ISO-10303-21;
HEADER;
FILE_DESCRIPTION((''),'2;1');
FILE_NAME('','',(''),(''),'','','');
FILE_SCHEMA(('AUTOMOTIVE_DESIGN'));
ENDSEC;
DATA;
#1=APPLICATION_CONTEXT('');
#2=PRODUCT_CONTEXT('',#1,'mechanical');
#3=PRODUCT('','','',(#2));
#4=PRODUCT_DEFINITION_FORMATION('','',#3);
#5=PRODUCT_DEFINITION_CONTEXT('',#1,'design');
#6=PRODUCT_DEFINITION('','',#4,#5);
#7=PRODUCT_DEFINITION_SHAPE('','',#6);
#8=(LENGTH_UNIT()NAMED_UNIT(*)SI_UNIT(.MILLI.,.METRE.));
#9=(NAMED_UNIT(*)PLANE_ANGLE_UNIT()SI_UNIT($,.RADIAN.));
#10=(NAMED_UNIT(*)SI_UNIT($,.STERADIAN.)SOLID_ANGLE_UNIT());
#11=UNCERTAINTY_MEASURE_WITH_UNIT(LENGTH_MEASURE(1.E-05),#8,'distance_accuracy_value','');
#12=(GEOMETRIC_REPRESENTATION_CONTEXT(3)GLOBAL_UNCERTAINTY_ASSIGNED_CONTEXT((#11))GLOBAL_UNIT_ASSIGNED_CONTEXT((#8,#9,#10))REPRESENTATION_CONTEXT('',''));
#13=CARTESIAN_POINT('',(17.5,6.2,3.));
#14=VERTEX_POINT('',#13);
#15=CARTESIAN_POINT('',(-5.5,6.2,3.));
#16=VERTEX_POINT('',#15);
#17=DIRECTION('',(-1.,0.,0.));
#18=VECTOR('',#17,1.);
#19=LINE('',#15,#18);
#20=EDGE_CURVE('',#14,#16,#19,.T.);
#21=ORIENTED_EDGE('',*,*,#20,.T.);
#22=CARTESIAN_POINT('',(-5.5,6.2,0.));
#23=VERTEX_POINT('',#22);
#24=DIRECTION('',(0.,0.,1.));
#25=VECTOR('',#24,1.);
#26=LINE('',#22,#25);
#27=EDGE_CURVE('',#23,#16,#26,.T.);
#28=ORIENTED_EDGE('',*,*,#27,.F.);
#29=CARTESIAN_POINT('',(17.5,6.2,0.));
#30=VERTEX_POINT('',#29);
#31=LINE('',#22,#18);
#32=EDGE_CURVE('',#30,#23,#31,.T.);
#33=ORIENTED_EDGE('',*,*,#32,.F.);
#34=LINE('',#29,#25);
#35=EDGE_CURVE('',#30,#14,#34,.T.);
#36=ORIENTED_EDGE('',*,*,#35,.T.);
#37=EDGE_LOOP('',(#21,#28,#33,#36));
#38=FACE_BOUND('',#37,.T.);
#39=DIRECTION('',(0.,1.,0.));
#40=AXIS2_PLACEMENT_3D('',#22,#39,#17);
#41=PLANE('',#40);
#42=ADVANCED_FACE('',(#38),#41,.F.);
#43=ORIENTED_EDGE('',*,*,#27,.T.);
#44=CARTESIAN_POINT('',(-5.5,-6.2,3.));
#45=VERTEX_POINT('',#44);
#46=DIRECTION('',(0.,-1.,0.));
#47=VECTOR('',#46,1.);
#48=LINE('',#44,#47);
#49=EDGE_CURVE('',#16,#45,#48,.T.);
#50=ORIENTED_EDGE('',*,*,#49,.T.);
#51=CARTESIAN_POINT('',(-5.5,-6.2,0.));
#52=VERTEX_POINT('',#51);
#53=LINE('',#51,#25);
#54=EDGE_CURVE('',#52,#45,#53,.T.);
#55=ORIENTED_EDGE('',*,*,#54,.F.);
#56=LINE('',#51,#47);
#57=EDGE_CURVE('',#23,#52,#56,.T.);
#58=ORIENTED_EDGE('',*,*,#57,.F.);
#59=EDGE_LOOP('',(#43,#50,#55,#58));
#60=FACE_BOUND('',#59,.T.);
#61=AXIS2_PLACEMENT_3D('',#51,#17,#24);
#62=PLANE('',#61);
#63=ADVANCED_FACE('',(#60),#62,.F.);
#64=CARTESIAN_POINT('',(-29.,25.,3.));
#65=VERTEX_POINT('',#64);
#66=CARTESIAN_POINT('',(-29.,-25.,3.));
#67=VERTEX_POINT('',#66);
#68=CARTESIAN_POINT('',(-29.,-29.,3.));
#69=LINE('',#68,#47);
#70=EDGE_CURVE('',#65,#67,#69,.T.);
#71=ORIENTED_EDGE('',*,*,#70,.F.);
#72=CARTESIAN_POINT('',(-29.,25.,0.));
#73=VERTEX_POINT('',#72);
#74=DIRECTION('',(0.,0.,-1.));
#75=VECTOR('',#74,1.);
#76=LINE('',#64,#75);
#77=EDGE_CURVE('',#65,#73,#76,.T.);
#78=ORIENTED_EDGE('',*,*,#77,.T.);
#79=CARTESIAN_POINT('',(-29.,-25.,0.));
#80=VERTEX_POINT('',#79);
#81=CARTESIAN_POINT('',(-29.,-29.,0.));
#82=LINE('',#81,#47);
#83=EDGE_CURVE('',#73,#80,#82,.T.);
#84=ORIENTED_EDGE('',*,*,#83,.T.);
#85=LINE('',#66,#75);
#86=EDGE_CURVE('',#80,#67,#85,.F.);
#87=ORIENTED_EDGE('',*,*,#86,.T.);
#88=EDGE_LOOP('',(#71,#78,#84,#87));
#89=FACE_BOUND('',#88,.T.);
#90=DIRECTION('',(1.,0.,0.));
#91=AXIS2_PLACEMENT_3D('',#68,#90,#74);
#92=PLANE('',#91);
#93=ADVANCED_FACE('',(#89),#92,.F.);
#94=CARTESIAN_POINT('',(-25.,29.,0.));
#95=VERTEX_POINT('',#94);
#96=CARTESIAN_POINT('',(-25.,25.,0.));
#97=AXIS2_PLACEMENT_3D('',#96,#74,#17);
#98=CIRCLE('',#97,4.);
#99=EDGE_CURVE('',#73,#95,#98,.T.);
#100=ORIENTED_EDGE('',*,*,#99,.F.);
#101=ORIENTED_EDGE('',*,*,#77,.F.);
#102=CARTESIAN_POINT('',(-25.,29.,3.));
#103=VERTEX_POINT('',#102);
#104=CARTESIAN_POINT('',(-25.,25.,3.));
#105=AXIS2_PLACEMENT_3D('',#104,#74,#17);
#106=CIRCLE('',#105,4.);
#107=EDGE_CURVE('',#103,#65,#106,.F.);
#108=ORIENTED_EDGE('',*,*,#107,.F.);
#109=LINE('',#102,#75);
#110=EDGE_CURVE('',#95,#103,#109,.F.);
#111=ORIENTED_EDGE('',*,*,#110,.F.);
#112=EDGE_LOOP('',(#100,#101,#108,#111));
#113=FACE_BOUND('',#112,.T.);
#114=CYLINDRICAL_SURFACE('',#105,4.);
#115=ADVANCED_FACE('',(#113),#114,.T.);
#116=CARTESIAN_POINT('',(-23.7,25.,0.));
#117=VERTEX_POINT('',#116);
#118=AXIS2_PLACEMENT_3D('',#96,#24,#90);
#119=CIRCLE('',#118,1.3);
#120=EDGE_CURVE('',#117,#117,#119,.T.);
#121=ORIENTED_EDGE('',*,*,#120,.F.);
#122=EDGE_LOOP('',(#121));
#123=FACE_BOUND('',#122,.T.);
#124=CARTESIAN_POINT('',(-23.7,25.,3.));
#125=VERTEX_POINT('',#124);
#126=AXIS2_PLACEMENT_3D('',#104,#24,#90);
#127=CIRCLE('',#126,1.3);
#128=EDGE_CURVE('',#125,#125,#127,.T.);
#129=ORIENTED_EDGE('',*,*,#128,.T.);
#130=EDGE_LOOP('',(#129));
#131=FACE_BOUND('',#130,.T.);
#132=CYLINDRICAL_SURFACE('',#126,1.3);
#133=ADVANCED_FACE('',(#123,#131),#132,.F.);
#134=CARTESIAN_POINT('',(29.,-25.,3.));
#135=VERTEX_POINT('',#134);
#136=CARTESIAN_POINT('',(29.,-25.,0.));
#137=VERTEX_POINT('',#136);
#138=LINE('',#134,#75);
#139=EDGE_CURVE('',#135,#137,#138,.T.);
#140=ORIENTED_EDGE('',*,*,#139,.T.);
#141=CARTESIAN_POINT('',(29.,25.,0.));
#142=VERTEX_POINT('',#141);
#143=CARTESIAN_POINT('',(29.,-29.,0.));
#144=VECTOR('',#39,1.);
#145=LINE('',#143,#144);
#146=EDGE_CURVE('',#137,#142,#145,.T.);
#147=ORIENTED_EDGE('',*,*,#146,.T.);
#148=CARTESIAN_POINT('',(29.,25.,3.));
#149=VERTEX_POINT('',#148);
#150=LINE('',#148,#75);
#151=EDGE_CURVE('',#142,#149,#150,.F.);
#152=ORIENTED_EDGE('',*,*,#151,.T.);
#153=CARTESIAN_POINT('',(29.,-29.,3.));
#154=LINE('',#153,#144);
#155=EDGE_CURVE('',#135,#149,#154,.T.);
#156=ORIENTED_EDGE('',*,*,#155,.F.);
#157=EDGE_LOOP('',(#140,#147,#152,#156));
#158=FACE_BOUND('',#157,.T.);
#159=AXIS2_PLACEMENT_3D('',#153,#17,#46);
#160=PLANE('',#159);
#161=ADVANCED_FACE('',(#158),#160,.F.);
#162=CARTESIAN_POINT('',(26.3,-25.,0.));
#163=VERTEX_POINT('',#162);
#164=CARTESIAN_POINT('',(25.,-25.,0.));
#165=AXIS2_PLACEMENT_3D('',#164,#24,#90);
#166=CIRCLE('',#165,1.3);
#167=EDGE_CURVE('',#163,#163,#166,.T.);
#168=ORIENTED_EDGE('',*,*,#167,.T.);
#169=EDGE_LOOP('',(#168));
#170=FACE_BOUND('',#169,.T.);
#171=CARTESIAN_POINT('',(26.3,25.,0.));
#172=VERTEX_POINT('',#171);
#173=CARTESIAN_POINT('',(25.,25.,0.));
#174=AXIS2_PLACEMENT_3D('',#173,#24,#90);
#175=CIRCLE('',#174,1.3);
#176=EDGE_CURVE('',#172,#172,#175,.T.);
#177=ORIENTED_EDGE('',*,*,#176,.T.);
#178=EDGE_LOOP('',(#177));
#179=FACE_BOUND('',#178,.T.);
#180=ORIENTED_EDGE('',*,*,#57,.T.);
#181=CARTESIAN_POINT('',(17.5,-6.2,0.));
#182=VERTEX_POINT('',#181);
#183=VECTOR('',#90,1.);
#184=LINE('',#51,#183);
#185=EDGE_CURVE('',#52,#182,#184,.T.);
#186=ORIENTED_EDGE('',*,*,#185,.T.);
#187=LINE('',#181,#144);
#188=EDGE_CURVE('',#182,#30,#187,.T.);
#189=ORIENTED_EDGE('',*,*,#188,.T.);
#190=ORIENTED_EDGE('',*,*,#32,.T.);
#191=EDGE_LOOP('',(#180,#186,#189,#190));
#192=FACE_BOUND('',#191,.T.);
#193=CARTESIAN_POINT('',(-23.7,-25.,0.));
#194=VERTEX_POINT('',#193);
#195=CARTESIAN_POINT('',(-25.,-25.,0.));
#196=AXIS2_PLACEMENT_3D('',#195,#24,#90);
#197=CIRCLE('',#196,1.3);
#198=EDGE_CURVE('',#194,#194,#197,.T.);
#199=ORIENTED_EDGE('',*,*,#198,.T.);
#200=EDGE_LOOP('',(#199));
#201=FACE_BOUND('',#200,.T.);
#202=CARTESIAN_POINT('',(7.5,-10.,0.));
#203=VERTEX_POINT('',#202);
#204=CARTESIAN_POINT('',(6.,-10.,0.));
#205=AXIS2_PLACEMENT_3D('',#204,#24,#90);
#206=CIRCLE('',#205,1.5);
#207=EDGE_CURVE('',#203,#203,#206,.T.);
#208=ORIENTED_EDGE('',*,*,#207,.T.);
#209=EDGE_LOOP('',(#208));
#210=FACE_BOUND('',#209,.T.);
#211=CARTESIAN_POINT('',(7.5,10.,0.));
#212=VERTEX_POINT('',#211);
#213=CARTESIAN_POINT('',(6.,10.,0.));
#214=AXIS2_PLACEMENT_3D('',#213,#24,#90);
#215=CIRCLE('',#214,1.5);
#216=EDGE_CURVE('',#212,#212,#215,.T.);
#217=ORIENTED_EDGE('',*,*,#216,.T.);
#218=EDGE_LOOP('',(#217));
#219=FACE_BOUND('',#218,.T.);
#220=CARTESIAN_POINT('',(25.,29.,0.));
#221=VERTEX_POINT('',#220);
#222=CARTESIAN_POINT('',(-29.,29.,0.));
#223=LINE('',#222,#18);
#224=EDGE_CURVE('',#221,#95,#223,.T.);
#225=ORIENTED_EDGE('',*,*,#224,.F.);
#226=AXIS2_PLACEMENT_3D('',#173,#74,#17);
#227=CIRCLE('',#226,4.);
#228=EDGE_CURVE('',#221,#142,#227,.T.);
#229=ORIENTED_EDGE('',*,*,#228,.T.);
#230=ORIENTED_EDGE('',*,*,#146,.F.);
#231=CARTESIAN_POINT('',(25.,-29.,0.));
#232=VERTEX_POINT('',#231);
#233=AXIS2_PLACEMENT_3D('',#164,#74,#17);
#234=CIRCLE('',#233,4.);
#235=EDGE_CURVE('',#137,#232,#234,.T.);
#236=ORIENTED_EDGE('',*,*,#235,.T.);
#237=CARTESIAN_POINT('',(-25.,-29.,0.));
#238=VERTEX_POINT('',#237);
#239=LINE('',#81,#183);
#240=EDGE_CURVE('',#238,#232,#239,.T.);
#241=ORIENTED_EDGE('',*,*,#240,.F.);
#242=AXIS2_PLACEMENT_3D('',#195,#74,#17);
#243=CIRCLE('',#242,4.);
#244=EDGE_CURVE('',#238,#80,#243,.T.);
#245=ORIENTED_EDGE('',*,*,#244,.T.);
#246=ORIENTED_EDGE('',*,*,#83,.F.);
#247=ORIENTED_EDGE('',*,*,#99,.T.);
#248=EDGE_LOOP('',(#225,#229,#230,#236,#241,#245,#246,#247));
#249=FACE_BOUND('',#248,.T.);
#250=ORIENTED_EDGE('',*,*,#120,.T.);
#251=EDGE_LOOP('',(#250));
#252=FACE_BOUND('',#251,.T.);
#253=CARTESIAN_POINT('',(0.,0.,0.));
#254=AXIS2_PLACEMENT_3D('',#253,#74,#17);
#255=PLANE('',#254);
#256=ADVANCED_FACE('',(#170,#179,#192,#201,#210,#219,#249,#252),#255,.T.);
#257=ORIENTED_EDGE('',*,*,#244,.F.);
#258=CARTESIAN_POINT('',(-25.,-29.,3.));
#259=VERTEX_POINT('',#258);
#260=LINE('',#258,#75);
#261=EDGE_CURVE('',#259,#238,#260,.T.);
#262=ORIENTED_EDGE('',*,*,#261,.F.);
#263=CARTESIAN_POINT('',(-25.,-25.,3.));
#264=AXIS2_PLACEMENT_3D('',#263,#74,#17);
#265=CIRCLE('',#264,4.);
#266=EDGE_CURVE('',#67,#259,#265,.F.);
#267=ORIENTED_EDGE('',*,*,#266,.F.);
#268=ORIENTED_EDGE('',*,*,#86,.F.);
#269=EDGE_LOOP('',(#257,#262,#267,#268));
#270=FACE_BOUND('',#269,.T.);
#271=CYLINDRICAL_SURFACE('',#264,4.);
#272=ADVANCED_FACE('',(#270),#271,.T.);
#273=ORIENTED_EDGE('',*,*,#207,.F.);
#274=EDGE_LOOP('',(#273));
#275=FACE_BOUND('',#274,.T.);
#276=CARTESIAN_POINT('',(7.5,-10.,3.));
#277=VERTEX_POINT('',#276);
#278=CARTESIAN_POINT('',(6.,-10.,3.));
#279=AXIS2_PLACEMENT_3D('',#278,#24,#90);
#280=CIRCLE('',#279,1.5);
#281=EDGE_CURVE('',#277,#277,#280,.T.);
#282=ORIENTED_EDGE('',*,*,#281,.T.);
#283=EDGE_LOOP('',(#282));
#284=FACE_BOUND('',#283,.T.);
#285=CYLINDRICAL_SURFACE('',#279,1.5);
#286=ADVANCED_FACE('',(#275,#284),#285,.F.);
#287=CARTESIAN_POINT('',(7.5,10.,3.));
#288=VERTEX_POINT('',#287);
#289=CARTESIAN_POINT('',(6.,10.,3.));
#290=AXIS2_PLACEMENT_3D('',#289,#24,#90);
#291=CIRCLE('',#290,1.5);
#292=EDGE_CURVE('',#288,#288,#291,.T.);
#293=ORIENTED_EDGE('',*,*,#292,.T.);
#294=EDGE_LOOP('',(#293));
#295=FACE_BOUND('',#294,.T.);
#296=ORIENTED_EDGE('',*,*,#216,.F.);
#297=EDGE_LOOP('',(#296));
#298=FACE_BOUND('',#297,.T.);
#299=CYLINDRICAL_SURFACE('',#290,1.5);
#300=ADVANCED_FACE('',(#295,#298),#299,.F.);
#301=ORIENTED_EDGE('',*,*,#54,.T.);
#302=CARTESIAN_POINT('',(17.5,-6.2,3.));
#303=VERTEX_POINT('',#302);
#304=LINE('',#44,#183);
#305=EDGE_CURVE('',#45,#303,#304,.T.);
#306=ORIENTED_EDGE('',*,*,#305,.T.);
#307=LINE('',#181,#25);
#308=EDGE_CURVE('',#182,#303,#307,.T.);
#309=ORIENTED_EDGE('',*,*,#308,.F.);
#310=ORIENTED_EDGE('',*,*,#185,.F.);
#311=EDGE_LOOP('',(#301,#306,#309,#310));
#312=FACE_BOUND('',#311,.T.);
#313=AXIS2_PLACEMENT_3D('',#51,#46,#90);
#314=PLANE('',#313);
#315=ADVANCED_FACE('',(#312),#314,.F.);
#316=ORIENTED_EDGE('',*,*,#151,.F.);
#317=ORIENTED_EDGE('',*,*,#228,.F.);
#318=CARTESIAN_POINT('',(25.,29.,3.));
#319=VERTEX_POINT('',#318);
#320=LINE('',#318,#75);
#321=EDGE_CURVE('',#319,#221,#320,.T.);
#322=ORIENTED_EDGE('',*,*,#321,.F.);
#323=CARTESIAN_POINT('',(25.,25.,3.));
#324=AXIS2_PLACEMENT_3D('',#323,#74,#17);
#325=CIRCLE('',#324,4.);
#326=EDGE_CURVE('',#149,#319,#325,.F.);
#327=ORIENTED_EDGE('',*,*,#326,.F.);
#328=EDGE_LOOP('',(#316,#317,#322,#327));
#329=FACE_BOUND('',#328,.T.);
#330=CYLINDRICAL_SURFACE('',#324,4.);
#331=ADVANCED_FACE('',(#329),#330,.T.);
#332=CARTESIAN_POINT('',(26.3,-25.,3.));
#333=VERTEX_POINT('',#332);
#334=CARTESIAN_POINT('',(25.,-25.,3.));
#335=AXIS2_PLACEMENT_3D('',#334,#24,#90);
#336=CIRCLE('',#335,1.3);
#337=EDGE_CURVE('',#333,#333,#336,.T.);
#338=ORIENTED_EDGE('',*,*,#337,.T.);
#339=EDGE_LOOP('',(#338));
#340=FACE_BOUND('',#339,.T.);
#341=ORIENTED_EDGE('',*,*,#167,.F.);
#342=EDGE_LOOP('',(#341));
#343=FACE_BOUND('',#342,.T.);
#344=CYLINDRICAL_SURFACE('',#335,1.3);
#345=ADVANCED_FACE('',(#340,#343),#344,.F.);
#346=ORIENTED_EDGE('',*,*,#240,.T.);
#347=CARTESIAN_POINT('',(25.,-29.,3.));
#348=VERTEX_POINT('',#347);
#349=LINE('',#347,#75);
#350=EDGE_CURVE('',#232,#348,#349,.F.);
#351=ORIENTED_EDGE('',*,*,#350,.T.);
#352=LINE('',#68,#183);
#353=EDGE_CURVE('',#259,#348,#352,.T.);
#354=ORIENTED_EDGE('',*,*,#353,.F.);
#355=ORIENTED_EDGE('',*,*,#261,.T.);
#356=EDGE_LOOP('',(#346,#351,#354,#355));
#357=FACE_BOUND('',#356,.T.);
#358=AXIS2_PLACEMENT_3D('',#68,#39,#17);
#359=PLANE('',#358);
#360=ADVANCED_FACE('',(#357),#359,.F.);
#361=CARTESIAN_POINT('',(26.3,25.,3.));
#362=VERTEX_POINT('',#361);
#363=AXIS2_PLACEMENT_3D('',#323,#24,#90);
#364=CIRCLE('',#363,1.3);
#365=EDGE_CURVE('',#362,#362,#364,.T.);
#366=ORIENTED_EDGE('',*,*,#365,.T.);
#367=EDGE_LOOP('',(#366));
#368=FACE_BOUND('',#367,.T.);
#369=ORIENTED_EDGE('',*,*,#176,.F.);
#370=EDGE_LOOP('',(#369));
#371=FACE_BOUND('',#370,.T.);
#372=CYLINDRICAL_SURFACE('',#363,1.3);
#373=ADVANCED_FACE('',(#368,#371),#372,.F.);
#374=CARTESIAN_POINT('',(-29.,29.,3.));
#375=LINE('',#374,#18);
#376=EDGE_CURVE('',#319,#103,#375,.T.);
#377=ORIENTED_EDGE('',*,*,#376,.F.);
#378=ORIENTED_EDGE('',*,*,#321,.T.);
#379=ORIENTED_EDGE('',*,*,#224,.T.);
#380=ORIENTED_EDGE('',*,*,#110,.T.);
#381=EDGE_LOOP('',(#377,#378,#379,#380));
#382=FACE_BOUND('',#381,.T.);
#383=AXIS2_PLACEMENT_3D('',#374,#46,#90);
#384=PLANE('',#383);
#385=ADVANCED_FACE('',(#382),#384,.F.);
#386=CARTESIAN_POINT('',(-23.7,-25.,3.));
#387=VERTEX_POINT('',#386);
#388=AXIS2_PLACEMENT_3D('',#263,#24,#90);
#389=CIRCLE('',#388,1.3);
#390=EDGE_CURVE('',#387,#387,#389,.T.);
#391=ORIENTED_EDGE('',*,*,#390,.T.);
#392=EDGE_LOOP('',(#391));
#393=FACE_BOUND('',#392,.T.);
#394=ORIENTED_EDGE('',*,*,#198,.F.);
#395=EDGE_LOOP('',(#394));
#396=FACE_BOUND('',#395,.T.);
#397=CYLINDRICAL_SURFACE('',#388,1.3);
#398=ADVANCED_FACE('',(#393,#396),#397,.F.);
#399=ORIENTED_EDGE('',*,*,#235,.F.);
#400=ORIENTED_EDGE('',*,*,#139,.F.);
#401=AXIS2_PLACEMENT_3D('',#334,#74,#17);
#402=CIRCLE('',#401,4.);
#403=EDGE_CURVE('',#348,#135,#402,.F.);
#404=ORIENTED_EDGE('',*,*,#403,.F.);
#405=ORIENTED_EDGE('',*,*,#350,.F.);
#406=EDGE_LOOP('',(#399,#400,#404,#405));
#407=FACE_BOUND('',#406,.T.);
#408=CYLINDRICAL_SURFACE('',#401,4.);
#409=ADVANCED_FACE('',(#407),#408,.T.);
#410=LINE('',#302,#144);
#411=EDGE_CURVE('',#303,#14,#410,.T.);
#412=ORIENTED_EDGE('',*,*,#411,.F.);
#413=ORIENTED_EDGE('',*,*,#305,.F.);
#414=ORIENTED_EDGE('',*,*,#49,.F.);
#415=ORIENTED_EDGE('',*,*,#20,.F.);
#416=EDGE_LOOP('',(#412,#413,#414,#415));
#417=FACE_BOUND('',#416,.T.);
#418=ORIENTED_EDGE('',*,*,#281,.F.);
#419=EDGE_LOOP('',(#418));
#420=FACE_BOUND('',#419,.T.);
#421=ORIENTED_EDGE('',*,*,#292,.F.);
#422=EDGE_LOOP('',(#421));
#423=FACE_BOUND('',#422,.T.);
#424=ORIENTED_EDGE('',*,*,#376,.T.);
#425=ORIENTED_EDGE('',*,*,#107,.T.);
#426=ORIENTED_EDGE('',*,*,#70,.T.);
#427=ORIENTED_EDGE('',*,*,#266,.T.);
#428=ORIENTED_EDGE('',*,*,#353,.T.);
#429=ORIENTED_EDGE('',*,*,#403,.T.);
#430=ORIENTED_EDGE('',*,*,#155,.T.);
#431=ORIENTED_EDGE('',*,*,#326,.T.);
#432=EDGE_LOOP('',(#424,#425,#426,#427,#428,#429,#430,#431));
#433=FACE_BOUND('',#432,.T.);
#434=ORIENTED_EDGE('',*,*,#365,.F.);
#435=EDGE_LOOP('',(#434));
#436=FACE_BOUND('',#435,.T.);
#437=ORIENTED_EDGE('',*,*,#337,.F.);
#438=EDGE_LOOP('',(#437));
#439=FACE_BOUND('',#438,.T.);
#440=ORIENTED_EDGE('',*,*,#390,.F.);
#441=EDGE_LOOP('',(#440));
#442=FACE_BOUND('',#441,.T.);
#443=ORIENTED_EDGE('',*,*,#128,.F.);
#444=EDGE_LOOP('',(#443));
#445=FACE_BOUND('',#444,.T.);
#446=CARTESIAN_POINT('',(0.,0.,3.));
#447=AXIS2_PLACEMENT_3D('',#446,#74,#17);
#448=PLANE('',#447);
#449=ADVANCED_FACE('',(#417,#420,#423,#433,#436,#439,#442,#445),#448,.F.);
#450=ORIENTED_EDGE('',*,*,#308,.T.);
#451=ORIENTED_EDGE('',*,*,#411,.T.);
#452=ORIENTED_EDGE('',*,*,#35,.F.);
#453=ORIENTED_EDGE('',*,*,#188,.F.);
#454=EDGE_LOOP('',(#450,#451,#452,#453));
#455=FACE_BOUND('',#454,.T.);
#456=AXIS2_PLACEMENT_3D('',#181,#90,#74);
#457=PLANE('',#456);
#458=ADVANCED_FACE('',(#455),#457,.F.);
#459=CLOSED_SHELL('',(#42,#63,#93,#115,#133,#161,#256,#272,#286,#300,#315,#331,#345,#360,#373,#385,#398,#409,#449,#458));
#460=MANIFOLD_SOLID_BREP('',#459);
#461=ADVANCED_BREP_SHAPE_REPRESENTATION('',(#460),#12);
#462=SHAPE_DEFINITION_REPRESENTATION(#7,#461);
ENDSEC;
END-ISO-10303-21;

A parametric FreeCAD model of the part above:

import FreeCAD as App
import Part
import Sketcher
from FreeCAD import Vector


def edges_at(feature, points):
    """Names of the edges that pass closest to the given points."""
    edges = feature.Shape.Edges
    near = lambda p: min(range(len(edges)), key=lambda i: edges[i].distToShape(Part.Vertex(*p))[0])
    return sorted({f"Edge{near(p) + 1}" for p in points})


def add_polygon(sketch, points):
    """Adds a closed chain of lines whose ends are joined by coincident constraints."""
    first, n = sketch.GeometryCount, len(points)
    for a, b in zip(points, points[1:] + points[:1]):
        sketch.addGeometry(Part.LineSegment(App.Vector(*a, 0), App.Vector(*b, 0)), False)
    for i in range(n):
        sketch.addConstraint(Sketcher.Constraint("Coincident", first + i, 2, first + (i + 1) % n, 1))

doc = App.newDocument("Part")
body = doc.addObject("PartDesign::Body", "Body")

sketch1 = body.newObject("Sketcher::SketchObject", "Sketch")
sketch1.AttachmentSupport = (doc.getObject("XY_Plane"), [""])
sketch1.MapMode = "FlatFace"
add_polygon(sketch1, [(-29, 29), (-29, -29), (29, -29), (29, 29)])
sketch1.addConstraint(Sketcher.Constraint("Vertical", 0))
sketch1.addConstraint(Sketcher.Constraint("Horizontal", 1))
sketch1.addConstraint(Sketcher.Constraint("Vertical", 2))
sketch1.addConstraint(Sketcher.Constraint("Horizontal", 3))
sketch1.addConstraint(Sketcher.Constraint("Symmetric", 0, 2, 2, 2, -1, 1))
sketch1.addConstraint(Sketcher.Constraint("Equal", 3, 0))
sketch1.addConstraint(Sketcher.Constraint("DistanceX", 1, 1, 1, 2, 58.0))
pad1 = body.newObject("PartDesign::Pad", "Pad")
pad1.Profile = sketch1
pad1.Length = 3

sketch2 = body.newObject("Sketcher::SketchObject", "Sketch001")
sketch2.AttachmentSupport = (doc.getObject("XY_Plane"), [""])
sketch2.MapMode = "FlatFace"
sketch2.AttachmentOffset = App.Placement(Vector(0, 0, 3), App.Rotation())
sketch2.addGeometry(Part.Circle(Vector(-25, 25, 0), Vector(0, 0, 1), 1.3), False)
sketch2.addGeometry(Part.Circle(Vector(25, 25, 0), Vector(0, 0, 1), 1.3), False)
sketch2.addGeometry(Part.Circle(Vector(25, -25, 0), Vector(0, 0, 1), 1.3), False)
sketch2.addGeometry(Part.Circle(Vector(-25, -25, 0), Vector(0, 0, 1), 1.3), False)
sketch2.addConstraint(Sketcher.Constraint("Equal", 0, 1))
sketch2.addConstraint(Sketcher.Constraint("Equal", 1, 2))
sketch2.addConstraint(Sketcher.Constraint("Equal", 2, 3))
sketch2.addConstraint(Sketcher.Constraint("Symmetric", 0, 3, 2, 3, -1, 1))
sketch2.addConstraint(Sketcher.Constraint("Symmetric", 1, 3, 3, 3, -1, 1))
sketch2.addConstraint(Sketcher.Constraint("Symmetric", 0, 3, 1, 3, -2))
sketch2.addConstraint(Sketcher.Constraint("Diameter", 0, 2.6))
sketch2.addConstraint(Sketcher.Constraint("DistanceX", 0, 3, -1, 1, 25.0))
sketch2.addConstraint(Sketcher.Constraint("DistanceY", -1, 1, 0, 3, 25.0))
doc.recompute()
hole = body.newObject("PartDesign::Hole", "Hole")
hole.Profile = sketch2
hole.ThreadType = "None"
hole.Diameter = 2.6
hole.DepthType = "ThroughAll"

sketch3 = body.newObject("Sketcher::SketchObject", "Sketch002")
sketch3.AttachmentSupport = (doc.getObject("XY_Plane"), [""])
sketch3.MapMode = "FlatFace"
sketch3.AttachmentOffset = App.Placement(Vector(0, 0, 3), App.Rotation())
add_polygon(sketch3, [(-6, 6), (-6, -6), (18, -6), (18, 6)])
sketch3.addConstraint(Sketcher.Constraint("Vertical", 0))
sketch3.addConstraint(Sketcher.Constraint("Horizontal", 1))
sketch3.addConstraint(Sketcher.Constraint("Vertical", 2))
sketch3.addConstraint(Sketcher.Constraint("Horizontal", 3))
sketch3.addConstraint(Sketcher.Constraint("DistanceX", 1, 1, 1, 2, 23.0))
sketch3.addConstraint(Sketcher.Constraint("DistanceY", 0, 2, 0, 1, 12.4))
sketch3.addConstraint(Sketcher.Constraint("DistanceX", 0, 2, -1, 1, 5.5))
sketch3.addConstraint(Sketcher.Constraint("DistanceY", 0, 2, -1, 1, 6.2))
pocket1 = body.newObject("PartDesign::Pocket", "Pocket")
pocket1.Profile = sketch3
pocket1.Type = "ThroughAll"

sketch4 = body.newObject("Sketcher::SketchObject", "Sketch003")
sketch4.AttachmentSupport = (doc.getObject("XY_Plane"), [""])
sketch4.MapMode = "FlatFace"
sketch4.AttachmentOffset = App.Placement(Vector(0, 0, 3), App.Rotation())
sketch4.addGeometry(Part.Circle(Vector(6, 10, 0), Vector(0, 0, 1), 1.5), False)
sketch4.addGeometry(Part.Circle(Vector(6, -10, 0), Vector(0, 0, 1), 1.5), False)
sketch4.addConstraint(Sketcher.Constraint("Equal", 0, 1))
sketch4.addConstraint(Sketcher.Constraint("Symmetric", 0, 3, 1, 3, -1))
sketch4.addConstraint(Sketcher.Constraint("Diameter", 0, 3.0))
sketch4.addConstraint(Sketcher.Constraint("DistanceX", -1, 1, 0, 3, 6.0))
sketch4.addConstraint(Sketcher.Constraint("DistanceY", -1, 1, 0, 3, 10.0))
doc.recompute()
hole2 = body.newObject("PartDesign::Hole", "Hole001")
hole2.Profile = sketch4
hole2.ThreadType = "None"
hole2.Diameter = 3
hole2.DepthType = "ThroughAll"
doc.recompute()

fillet = body.newObject("PartDesign::Fillet", "Fillet")
fillet.Base = (hole2, edges_at(hole2, [
    (29, -29, 1.5),
    (-29, -29, 1.5),
    (-29, 29, 1.5),
    (29, 29, 1.5),
]))
fillet.Radius = 4

doc.recompute()
